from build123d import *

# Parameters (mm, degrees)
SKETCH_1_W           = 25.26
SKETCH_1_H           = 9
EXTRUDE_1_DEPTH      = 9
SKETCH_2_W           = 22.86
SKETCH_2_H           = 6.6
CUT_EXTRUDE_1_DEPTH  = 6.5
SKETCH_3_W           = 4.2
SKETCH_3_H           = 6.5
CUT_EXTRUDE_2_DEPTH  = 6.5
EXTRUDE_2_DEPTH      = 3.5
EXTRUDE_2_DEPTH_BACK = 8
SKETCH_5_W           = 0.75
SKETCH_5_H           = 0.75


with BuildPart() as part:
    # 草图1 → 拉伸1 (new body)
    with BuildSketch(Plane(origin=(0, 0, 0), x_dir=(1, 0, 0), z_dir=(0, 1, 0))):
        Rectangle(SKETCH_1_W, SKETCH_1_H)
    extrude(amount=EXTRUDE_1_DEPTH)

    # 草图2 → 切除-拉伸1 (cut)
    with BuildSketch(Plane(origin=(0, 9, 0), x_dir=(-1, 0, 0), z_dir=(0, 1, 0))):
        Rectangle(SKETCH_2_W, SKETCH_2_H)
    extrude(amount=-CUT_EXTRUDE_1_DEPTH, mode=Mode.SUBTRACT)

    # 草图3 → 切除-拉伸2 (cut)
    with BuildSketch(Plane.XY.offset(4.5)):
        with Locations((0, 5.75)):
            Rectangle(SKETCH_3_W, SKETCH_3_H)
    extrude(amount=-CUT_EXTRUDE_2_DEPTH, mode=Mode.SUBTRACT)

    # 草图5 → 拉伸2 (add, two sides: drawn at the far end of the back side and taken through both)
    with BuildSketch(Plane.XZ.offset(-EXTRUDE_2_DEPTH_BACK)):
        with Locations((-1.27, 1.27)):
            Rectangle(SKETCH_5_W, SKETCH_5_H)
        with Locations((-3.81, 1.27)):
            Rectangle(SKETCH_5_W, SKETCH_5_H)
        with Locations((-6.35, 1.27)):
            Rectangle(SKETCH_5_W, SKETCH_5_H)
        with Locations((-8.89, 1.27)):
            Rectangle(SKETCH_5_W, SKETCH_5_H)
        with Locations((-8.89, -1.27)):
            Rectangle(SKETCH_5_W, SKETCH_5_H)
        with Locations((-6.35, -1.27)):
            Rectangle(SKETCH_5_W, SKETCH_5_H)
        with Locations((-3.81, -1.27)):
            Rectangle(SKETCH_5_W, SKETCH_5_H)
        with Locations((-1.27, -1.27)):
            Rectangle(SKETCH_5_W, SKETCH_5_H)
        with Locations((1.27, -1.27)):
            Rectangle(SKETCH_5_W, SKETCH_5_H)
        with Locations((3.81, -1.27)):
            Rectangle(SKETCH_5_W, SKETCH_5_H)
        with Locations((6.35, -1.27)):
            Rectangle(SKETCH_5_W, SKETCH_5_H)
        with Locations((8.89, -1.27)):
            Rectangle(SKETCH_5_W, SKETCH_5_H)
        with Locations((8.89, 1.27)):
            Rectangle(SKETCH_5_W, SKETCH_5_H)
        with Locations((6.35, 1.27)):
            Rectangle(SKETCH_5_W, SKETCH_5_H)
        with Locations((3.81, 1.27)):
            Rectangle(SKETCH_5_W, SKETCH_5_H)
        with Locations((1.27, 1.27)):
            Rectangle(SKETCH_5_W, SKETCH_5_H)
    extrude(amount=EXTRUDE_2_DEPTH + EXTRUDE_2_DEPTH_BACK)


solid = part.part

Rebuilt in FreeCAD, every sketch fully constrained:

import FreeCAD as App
import Part
import Sketcher
Q = App.Units.Quantity

doc = App.newDocument("Part")
body = doc.addObject("PartDesign::Body", "Body")

sketch1 = body.newObject("Sketcher::SketchObject", "Sketch")
sketch1.AttachmentSupport = (doc.getObject("XZ_Plane"), [""])
sketch1.MapMode = "FlatFace"
sketch1.addGeometry(Part.LineSegment(App.Vector(-12.63, -4.5, 0), App.Vector(-12.63, 4.5, 0)), False)
sketch1.addGeometry(Part.LineSegment(App.Vector(-12.63, 4.5, 0), App.Vector(12.63, 4.5, 0)), False)
sketch1.addGeometry(Part.LineSegment(App.Vector(12.63, 4.5, 0), App.Vector(12.63, -4.5, 0)), False)
sketch1.addGeometry(Part.LineSegment(App.Vector(12.63, -4.5, 0), App.Vector(-12.63, -4.5, 0)), False)
sketch1.addConstraint(Sketcher.Constraint("Coincident", 0, 2, 1, 1))
sketch1.addConstraint(Sketcher.Constraint("Coincident", 1, 2, 2, 1))
sketch1.addConstraint(Sketcher.Constraint("Coincident", 2, 2, 3, 1))
sketch1.addConstraint(Sketcher.Constraint("Coincident", 3, 2, 0, 1))
sketch1.addConstraint(Sketcher.Constraint("Vertical", 0))
sketch1.addConstraint(Sketcher.Constraint("Horizontal", 1))
sketch1.addConstraint(Sketcher.Constraint("Vertical", 2))
sketch1.addConstraint(Sketcher.Constraint("Horizontal", 3))
sketch1.addConstraint(Sketcher.Constraint("Symmetric", 0, 2, 2, 2, -1, 1))
sketch1.addConstraint(Sketcher.Constraint("DistanceY", 0, 1, 0, 2, Q("9 mm")))
sketch1.addConstraint(Sketcher.Constraint("DistanceX", 1, 1, 1, 2, Q("25.26 mm")))
pad1 = body.newObject("PartDesign::Pad", "Pad")
pad1.Profile = sketch1
pad1.Length = 9
pad1.Reversed = True

sketch2 = body.newObject("Sketcher::SketchObject", "Sketch001")
sketch2.AttachmentSupport = (doc.getObject("XZ_Plane"), [""])
sketch2.MapMode = "FlatFace"
sketch2.AttachmentOffset = App.Placement(App.Vector(0, 0, -9), App.Rotation())
sketch2.addGeometry(Part.LineSegment(App.Vector(11.43, 3.3, 0), App.Vector(11.43, -3.3, 0)), False)
sketch2.addGeometry(Part.LineSegment(App.Vector(11.43, -3.3, 0), App.Vector(-11.43, -3.3, 0)), False)
sketch2.addGeometry(Part.LineSegment(App.Vector(-11.43, -3.3, 0), App.Vector(-11.43, 3.3, 0)), False)
sketch2.addGeometry(Part.LineSegment(App.Vector(-11.43, 3.3, 0), App.Vector(11.43, 3.3, 0)), False)
sketch2.addConstraint(Sketcher.Constraint("Coincident", 0, 2, 1, 1))
sketch2.addConstraint(Sketcher.Constraint("Coincident", 1, 2, 2, 1))
sketch2.addConstraint(Sketcher.Constraint("Coincident", 2, 2, 3, 1))
sketch2.addConstraint(Sketcher.Constraint("Coincident", 3, 2, 0, 1))
sketch2.addConstraint(Sketcher.Constraint("Vertical", 0))
sketch2.addConstraint(Sketcher.Constraint("Horizontal", 1))
sketch2.addConstraint(Sketcher.Constraint("Vertical", 2))
sketch2.addConstraint(Sketcher.Constraint("Horizontal", 3))
sketch2.addConstraint(Sketcher.Constraint("Symmetric", 0, 2, 2, 2, -1, 1))
sketch2.addConstraint(Sketcher.Constraint("DistanceY", 0, 2, 0, 1, Q("6.6 mm")))
sketch2.addConstraint(Sketcher.Constraint("DistanceX", 1, 2, 1, 1, Q("22.86 mm")))
pocket1 = body.newObject("PartDesign::Pocket", "Pocket")
pocket1.Profile = sketch2
pocket1.Length = 6.5
pocket1.Reversed = True

sketch3 = body.newObject("Sketcher::SketchObject", "Sketch002")
sketch3.AttachmentSupport = (doc.getObject("XY_Plane"), [""])
sketch3.MapMode = "FlatFace"
sketch3.AttachmentOffset = App.Placement(App.Vector(0, 0, 4.5), App.Rotation())
sketch3.addGeometry(Part.LineSegment(App.Vector(-2.1, 9, 0), App.Vector(-2.1, 2.5, 0)), False)
sketch3.addGeometry(Part.LineSegment(App.Vector(-2.1, 2.5, 0), App.Vector(2.1, 2.5, 0)), False)
sketch3.addGeometry(Part.LineSegment(App.Vector(2.1, 2.5, 0), App.Vector(2.1, 9, 0)), False)
sketch3.addGeometry(Part.LineSegment(App.Vector(2.1, 9, 0), App.Vector(-2.1, 9, 0)), False)
sketch3.addConstraint(Sketcher.Constraint("Coincident", 0, 2, 1, 1))
sketch3.addConstraint(Sketcher.Constraint("Coincident", 1, 2, 2, 1))
sketch3.addConstraint(Sketcher.Constraint("Coincident", 2, 2, 3, 1))
sketch3.addConstraint(Sketcher.Constraint("Coincident", 3, 2, 0, 1))
sketch3.addConstraint(Sketcher.Constraint("Vertical", 0))
sketch3.addConstraint(Sketcher.Constraint("Horizontal", 1))
sketch3.addConstraint(Sketcher.Constraint("Vertical", 2))
sketch3.addConstraint(Sketcher.Constraint("Horizontal", 3))
sketch3.addConstraint(Sketcher.Constraint("DistanceX", 1, 1, 1, 2, Q("4.2 mm")))
sketch3.addConstraint(Sketcher.Constraint("DistanceY", 0, 2, 0, 1, Q("6.5 mm")))
sketch3.addConstraint(Sketcher.Constraint("DistanceY", -1, 1, 2, 2, Q("9 mm")))
sketch3.addConstraint(Sketcher.Constraint("DistanceX", 0, 2, -1, 1, Q("2.1 mm")))
pocket2 = body.newObject("PartDesign::Pocket", "Pocket001")
pocket2.Profile = sketch3
pocket2.Length = 6.5

sketch4 = body.newObject("Sketcher::SketchObject", "Sketch003")
sketch4.AttachmentSupport = (doc.getObject("XZ_Plane"), [""])
sketch4.MapMode = "FlatFace"
sketch4.addGeometry(Part.LineSegment(App.Vector(-1.645, 1.645, 0), App.Vector(-1.645, 0.895, 0)), False)
sketch4.addGeometry(Part.LineSegment(App.Vector(-1.645, 0.895, 0), App.Vector(-0.895, 0.895, 0)), False)
sketch4.addGeometry(Part.LineSegment(App.Vector(-0.895, 0.895, 0), App.Vector(-0.895, 1.645, 0)), False)
sketch4.addGeometry(Part.LineSegment(App.Vector(-0.895, 1.645, 0), App.Vector(-1.645, 1.645, 0)), False)
sketch4.addGeometry(Part.LineSegment(App.Vector(-4.185, 1.645, 0), App.Vector(-4.185, 0.895, 0)), False)
sketch4.addGeometry(Part.LineSegment(App.Vector(-4.185, 0.895, 0), App.Vector(-3.435, 0.895, 0)), False)
sketch4.addGeometry(Part.LineSegment(App.Vector(-3.435, 0.895, 0), App.Vector(-3.435, 1.645, 0)), False)
sketch4.addGeometry(Part.LineSegment(App.Vector(-3.435, 1.645, 0), App.Vector(-4.185, 1.645, 0)), False)
sketch4.addGeometry(Part.LineSegment(App.Vector(-6.725, 1.645, 0), App.Vector(-6.725, 0.895, 0)), False)
sketch4.addGeometry(Part.LineSegment(App.Vector(-6.725, 0.895, 0), App.Vector(-5.975, 0.895, 0)), False)
sketch4.addGeometry(Part.LineSegment(App.Vector(-5.975, 0.895, 0), App.Vector(-5.975, 1.645, 0)), False)
sketch4.addGeometry(Part.LineSegment(App.Vector(-5.975, 1.645, 0), App.Vector(-6.725, 1.645, 0)), False)
sketch4.addGeometry(Part.LineSegment(App.Vector(-9.265, 1.645, 0), App.Vector(-9.265, 0.895, 0)), False)
sketch4.addGeometry(Part.LineSegment(App.Vector(-9.265, 0.895, 0), App.Vector(-8.515, 0.895, 0)), False)
sketch4.addGeometry(Part.LineSegment(App.Vector(-8.515, 0.895, 0), App.Vector(-8.515, 1.645, 0)), False)
sketch4.addGeometry(Part.LineSegment(App.Vector(-8.515, 1.645, 0), App.Vector(-9.265, 1.645, 0)), False)
sketch4.addGeometry(Part.LineSegment(App.Vector(-9.265, -0.895, 0), App.Vector(-9.265, -1.645, 0)), False)
sketch4.addGeometry(Part.LineSegment(App.Vector(-9.265, -1.645, 0), App.Vector(-8.515, -1.645, 0)), False)
sketch4.addGeometry(Part.LineSegment(App.Vector(-8.515, -1.645, 0), App.Vector(-8.515, -0.895, 0)), False)
sketch4.addGeometry(Part.LineSegment(App.Vector(-8.515, -0.895, 0), App.Vector(-9.265, -0.895, 0)), False)
sketch4.addGeometry(Part.LineSegment(App.Vector(-6.725, -0.895, 0), App.Vector(-6.725, -1.645, 0)), False)
sketch4.addGeometry(Part.LineSegment(App.Vector(-6.725, -1.645, 0), App.Vector(-5.975, -1.645, 0)), False)
sketch4.addGeometry(Part.LineSegment(App.Vector(-5.975, -1.645, 0), App.Vector(-5.975, -0.895, 0)), False)
sketch4.addGeometry(Part.LineSegment(App.Vector(-5.975, -0.895, 0), App.Vector(-6.725, -0.895, 0)), False)
sketch4.addGeometry(Part.LineSegment(App.Vector(-4.185, -0.895, 0), App.Vector(-4.185, -1.645, 0)), False)
sketch4.addGeometry(Part.LineSegment(App.Vector(-4.185, -1.645, 0), App.Vector(-3.435, -1.645, 0)), False)
sketch4.addGeometry(Part.LineSegment(App.Vector(-3.435, -1.645, 0), App.Vector(-3.435, -0.895, 0)), False)
sketch4.addGeometry(Part.LineSegment(App.Vector(-3.435, -0.895, 0), App.Vector(-4.185, -0.895, 0)), False)
sketch4.addGeometry(Part.LineSegment(App.Vector(-1.645, -0.895, 0), App.Vector(-1.645, -1.645, 0)), False)
sketch4.addGeometry(Part.LineSegment(App.Vector(-1.645, -1.645, 0), App.Vector(-0.895, -1.645, 0)), False)
sketch4.addGeometry(Part.LineSegment(App.Vector(-0.895, -1.645, 0), App.Vector(-0.895, -0.895, 0)), False)
sketch4.addGeometry(Part.LineSegment(App.Vector(-0.895, -0.895, 0), App.Vector(-1.645, -0.895, 0)), False)
sketch4.addGeometry(Part.LineSegment(App.Vector(0.895, -0.895, 0), App.Vector(0.895, -1.645, 0)), False)
sketch4.addGeometry(Part.LineSegment(App.Vector(0.895, -1.645, 0), App.Vector(1.645, -1.645, 0)), False)
sketch4.addGeometry(Part.LineSegment(App.Vector(1.645, -1.645, 0), App.Vector(1.645, -0.895, 0)), False)
sketch4.addGeometry(Part.LineSegment(App.Vector(1.645, -0.895, 0), App.Vector(0.895, -0.895, 0)), False)
sketch4.addGeometry(Part.LineSegment(App.Vector(3.435, -0.895, 0), App.Vector(3.435, -1.645, 0)), False)
sketch4.addGeometry(Part.LineSegment(App.Vector(3.435, -1.645, 0), App.Vector(4.185, -1.645, 0)), False)
sketch4.addGeometry(Part.LineSegment(App.Vector(4.185, -1.645, 0), App.Vector(4.185, -0.895, 0)), False)
sketch4.addGeometry(Part.LineSegment(App.Vector(4.185, -0.895, 0), App.Vector(3.435, -0.895, 0)), False)
sketch4.addGeometry(Part.LineSegment(App.Vector(5.975, -0.895, 0), App.Vector(5.975, -1.645, 0)), False)
sketch4.addGeometry(Part.LineSegment(App.Vector(5.975, -1.645, 0), App.Vector(6.725, -1.645, 0)), False)
sketch4.addGeometry(Part.LineSegment(App.Vector(6.725, -1.645, 0), App.Vector(6.725, -0.895, 0)), False)
sketch4.addGeometry(Part.LineSegment(App.Vector(6.725, -0.895, 0), App.Vector(5.975, -0.895, 0)), False)
sketch4.addGeometry(Part.LineSegment(App.Vector(8.515, -0.895, 0), App.Vector(8.515, -1.645, 0)), False)
sketch4.addGeometry(Part.LineSegment(App.Vector(8.515, -1.645, 0), App.Vector(9.265, -1.645, 0)), False)
sketch4.addGeometry(Part.LineSegment(App.Vector(9.265, -1.645, 0), App.Vector(9.265, -0.895, 0)), False)
sketch4.addGeometry(Part.LineSegment(App.Vector(9.265, -0.895, 0), App.Vector(8.515, -0.895, 0)), False)
sketch4.addGeometry(Part.LineSegment(App.Vector(8.515, 1.645, 0), App.Vector(8.515, 0.895, 0)), False)
sketch4.addGeometry(Part.LineSegment(App.Vector(8.515, 0.895, 0), App.Vector(9.265, 0.895, 0)), False)
sketch4.addGeometry(Part.LineSegment(App.Vector(9.265, 0.895, 0), App.Vector(9.265, 1.645, 0)), False)
sketch4.addGeometry(Part.LineSegment(App.Vector(9.265, 1.645, 0), App.Vector(8.515, 1.645, 0)), False)
sketch4.addGeometry(Part.LineSegment(App.Vector(5.975, 1.645, 0), App.Vector(5.975, 0.895, 0)), False)
sketch4.addGeometry(Part.LineSegment(App.Vector(5.975, 0.895, 0), App.Vector(6.725, 0.895, 0)), False)
sketch4.addGeometry(Part.LineSegment(App.Vector(6.725, 0.895, 0), App.Vector(6.725, 1.645, 0)), False)
sketch4.addGeometry(Part.LineSegment(App.Vector(6.725, 1.645, 0), App.Vector(5.975, 1.645, 0)), False)
sketch4.addGeometry(Part.LineSegment(App.Vector(3.435, 1.645, 0), App.Vector(3.435, 0.895, 0)), False)
sketch4.addGeometry(Part.LineSegment(App.Vector(3.435, 0.895, 0), App.Vector(4.185, 0.895, 0)), False)
sketch4.addGeometry(Part.LineSegment(App.Vector(4.185, 0.895, 0), App.Vector(4.185, 1.645, 0)), False)
sketch4.addGeometry(Part.LineSegment(App.Vector(4.185, 1.645, 0), App.Vector(3.435, 1.645, 0)), False)
sketch4.addGeometry(Part.LineSegment(App.Vector(0.895, 1.645, 0), App.Vector(0.895, 0.895, 0)), False)
sketch4.addGeometry(Part.LineSegment(App.Vector(0.895, 0.895, 0), App.Vector(1.645, 0.895, 0)), False)
sketch4.addGeometry(Part.LineSegment(App.Vector(1.645, 0.895, 0), App.Vector(1.645, 1.645, 0)), False)
sketch4.addGeometry(Part.LineSegment(App.Vector(1.645, 1.645, 0), App.Vector(0.895, 1.645, 0)), False)
sketch4.addConstraint(Sketcher.Constraint("Coincident", 0, 2, 1, 1))
sketch4.addConstraint(Sketcher.Constraint("Coincident", 1, 2, 2, 1))
sketch4.addConstraint(Sketcher.Constraint("Coincident", 2, 2, 3, 1))
sketch4.addConstraint(Sketcher.Constraint("Coincident", 3, 2, 0, 1))
sketch4.addConstraint(Sketcher.Constraint("Coincident", 4, 2, 5, 1))
sketch4.addConstraint(Sketcher.Constraint("Coincident", 5, 2, 6, 1))
sketch4.addConstraint(Sketcher.Constraint("Coincident", 6, 2, 7, 1))
sketch4.addConstraint(Sketcher.Constraint("Coincident", 7, 2, 4, 1))
sketch4.addConstraint(Sketcher.Constraint("Coincident", 8, 2, 9, 1))
sketch4.addConstraint(Sketcher.Constraint("Coincident", 9, 2, 10, 1))
sketch4.addConstraint(Sketcher.Constraint("Coincident", 10, 2, 11, 1))
sketch4.addConstraint(Sketcher.Constraint("Coincident", 11, 2, 8, 1))
sketch4.addConstraint(Sketcher.Constraint("Coincident", 12, 2, 13, 1))
sketch4.addConstraint(Sketcher.Constraint("Coincident", 13, 2, 14, 1))
sketch4.addConstraint(Sketcher.Constraint("Coincident", 14, 2, 15, 1))
sketch4.addConstraint(Sketcher.Constraint("Coincident", 15, 2, 12, 1))
sketch4.addConstraint(Sketcher.Constraint("Coincident", 16, 2, 17, 1))
sketch4.addConstraint(Sketcher.Constraint("Coincident", 17, 2, 18, 1))
sketch4.addConstraint(Sketcher.Constraint("Coincident", 18, 2, 19, 1))
sketch4.addConstraint(Sketcher.Constraint("Coincident", 19, 2, 16, 1))
sketch4.addConstraint(Sketcher.Constraint("Coincident", 20, 2, 21, 1))
sketch4.addConstraint(Sketcher.Constraint("Coincident", 21, 2, 22, 1))
sketch4.addConstraint(Sketcher.Constraint("Coincident", 22, 2, 23, 1))
sketch4.addConstraint(Sketcher.Constraint("Coincident", 23, 2, 20, 1))
sketch4.addConstraint(Sketcher.Constraint("Coincident", 24, 2, 25, 1))
sketch4.addConstraint(Sketcher.Constraint("Coincident", 25, 2, 26, 1))
sketch4.addConstraint(Sketcher.Constraint("Coincident", 26, 2, 27, 1))
sketch4.addConstraint(Sketcher.Constraint("Coincident", 27, 2, 24, 1))
sketch4.addConstraint(Sketcher.Constraint("Coincident", 28, 2, 29, 1))
sketch4.addConstraint(Sketcher.Constraint("Coincident", 29, 2, 30, 1))
sketch4.addConstraint(Sketcher.Constraint("Coincident", 30, 2, 31, 1))
sketch4.addConstraint(Sketcher.Constraint("Coincident", 31, 2, 28, 1))
sketch4.addConstraint(Sketcher.Constraint("Coincident", 32, 2, 33, 1))
sketch4.addConstraint(Sketcher.Constraint("Coincident", 33, 2, 34, 1))
sketch4.addConstraint(Sketcher.Constraint("Coincident", 34, 2, 35, 1))
sketch4.addConstraint(Sketcher.Constraint("Coincident", 35, 2, 32, 1))
sketch4.addConstraint(Sketcher.Constraint("Coincident", 36, 2, 37, 1))
sketch4.addConstraint(Sketcher.Constraint("Coincident", 37, 2, 38, 1))
sketch4.addConstraint(Sketcher.Constraint("Coincident", 38, 2, 39, 1))
sketch4.addConstraint(Sketcher.Constraint("Coincident", 39, 2, 36, 1))
sketch4.addConstraint(Sketcher.Constraint("Coincident", 40, 2, 41, 1))
sketch4.addConstraint(Sketcher.Constraint("Coincident", 41, 2, 42, 1))
sketch4.addConstraint(Sketcher.Constraint("Coincident", 42, 2, 43, 1))
sketch4.addConstraint(Sketcher.Constraint("Coincident", 43, 2, 40, 1))
sketch4.addConstraint(Sketcher.Constraint("Coincident", 44, 2, 45, 1))
sketch4.addConstraint(Sketcher.Constraint("Coincident", 45, 2, 46, 1))
sketch4.addConstraint(Sketcher.Constraint("Coincident", 46, 2, 47, 1))
sketch4.addConstraint(Sketcher.Constraint("Coincident", 47, 2, 44, 1))
sketch4.addConstraint(Sketcher.Constraint("Coincident", 48, 2, 49, 1))
sketch4.addConstraint(Sketcher.Constraint("Coincident", 49, 2, 50, 1))
sketch4.addConstraint(Sketcher.Constraint("Coincident", 50, 2, 51, 1))
sketch4.addConstraint(Sketcher.Constraint("Coincident", 51, 2, 48, 1))
sketch4.addConstraint(Sketcher.Constraint("Coincident", 52, 2, 53, 1))
sketch4.addConstraint(Sketcher.Constraint("Coincident", 53, 2, 54, 1))
sketch4.addConstraint(Sketcher.Constraint("Coincident", 54, 2, 55, 1))
sketch4.addConstraint(Sketcher.Constraint("Coincident", 55, 2, 52, 1))
sketch4.addConstraint(Sketcher.Constraint("Coincident", 56, 2, 57, 1))
sketch4.addConstraint(Sketcher.Constraint("Coincident", 57, 2, 58, 1))
sketch4.addConstraint(Sketcher.Constraint("Coincident", 58, 2, 59, 1))
sketch4.addConstraint(Sketcher.Constraint("Coincident", 59, 2, 56, 1))
sketch4.addConstraint(Sketcher.Constraint("Coincident", 60, 2, 61, 1))
sketch4.addConstraint(Sketcher.Constraint("Coincident", 61, 2, 62, 1))
sketch4.addConstraint(Sketcher.Constraint("Coincident", 62, 2, 63, 1))
sketch4.addConstraint(Sketcher.Constraint("Coincident", 63, 2, 60, 1))
sketch4.addConstraint(Sketcher.Constraint("Vertical", 0))
sketch4.addConstraint(Sketcher.Constraint("Horizontal", 1))
sketch4.addConstraint(Sketcher.Constraint("Vertical", 2))
sketch4.addConstraint(Sketcher.Constraint("Horizontal", 3))
sketch4.addConstraint(Sketcher.Constraint("Vertical", 4))
sketch4.addConstraint(Sketcher.Constraint("Horizontal", 5))
sketch4.addConstraint(Sketcher.Constraint("Vertical", 6))
sketch4.addConstraint(Sketcher.Constraint("Horizontal", 7))
sketch4.addConstraint(Sketcher.Constraint("Vertical", 8))
sketch4.addConstraint(Sketcher.Constraint("Horizontal", 9))
sketch4.addConstraint(Sketcher.Constraint("Vertical", 10))
sketch4.addConstraint(Sketcher.Constraint("Horizontal", 11))
sketch4.addConstraint(Sketcher.Constraint("Vertical", 12))
sketch4.addConstraint(Sketcher.Constraint("Horizontal", 13))
sketch4.addConstraint(Sketcher.Constraint("Vertical", 14))
sketch4.addConstraint(Sketcher.Constraint("Horizontal", 15))
sketch4.addConstraint(Sketcher.Constraint("Vertical", 16))
sketch4.addConstraint(Sketcher.Constraint("Horizontal", 17))
sketch4.addConstraint(Sketcher.Constraint("Vertical", 18))
sketch4.addConstraint(Sketcher.Constraint("Horizontal", 19))
sketch4.addConstraint(Sketcher.Constraint("Vertical", 20))
sketch4.addConstraint(Sketcher.Constraint("Horizontal", 21))
sketch4.addConstraint(Sketcher.Constraint("Vertical", 22))
sketch4.addConstraint(Sketcher.Constraint("Horizontal", 23))
sketch4.addConstraint(Sketcher.Constraint("Vertical", 24))
sketch4.addConstraint(Sketcher.Constraint("Horizontal", 25))
sketch4.addConstraint(Sketcher.Constraint("Vertical", 26))
sketch4.addConstraint(Sketcher.Constraint("Horizontal", 27))
sketch4.addConstraint(Sketcher.Constraint("Vertical", 28))
sketch4.addConstraint(Sketcher.Constraint("Horizontal", 29))
sketch4.addConstraint(Sketcher.Constraint("Vertical", 30))
sketch4.addConstraint(Sketcher.Constraint("Horizontal", 31))
sketch4.addConstraint(Sketcher.Constraint("Vertical", 32))
sketch4.addConstraint(Sketcher.Constraint("Horizontal", 33))
sketch4.addConstraint(Sketcher.Constraint("Vertical", 34))
sketch4.addConstraint(Sketcher.Constraint("Horizontal", 35))
sketch4.addConstraint(Sketcher.Constraint("Vertical", 36))
sketch4.addConstraint(Sketcher.Constraint("Horizontal", 37))
sketch4.addConstraint(Sketcher.Constraint("Vertical", 38))
sketch4.addConstraint(Sketcher.Constraint("Horizontal", 39))
sketch4.addConstraint(Sketcher.Constraint("Vertical", 40))
sketch4.addConstraint(Sketcher.Constraint("Horizontal", 41))
sketch4.addConstraint(Sketcher.Constraint("Vertical", 42))
sketch4.addConstraint(Sketcher.Constraint("Horizontal", 43))
sketch4.addConstraint(Sketcher.Constraint("Vertical", 44))
sketch4.addConstraint(Sketcher.Constraint("Horizontal", 45))
sketch4.addConstraint(Sketcher.Constraint("Vertical", 46))
sketch4.addConstraint(Sketcher.Constraint("Horizontal", 47))
sketch4.addConstraint(Sketcher.Constraint("Vertical", 48))
sketch4.addConstraint(Sketcher.Constraint("Horizontal", 49))
sketch4.addConstraint(Sketcher.Constraint("Vertical", 50))
sketch4.addConstraint(Sketcher.Constraint("Horizontal", 51))
sketch4.addConstraint(Sketcher.Constraint("Vertical", 52))
sketch4.addConstraint(Sketcher.Constraint("Horizontal", 53))
sketch4.addConstraint(Sketcher.Constraint("Vertical", 54))
sketch4.addConstraint(Sketcher.Constraint("Horizontal", 55))
sketch4.addConstraint(Sketcher.Constraint("Vertical", 56))
sketch4.addConstraint(Sketcher.Constraint("Horizontal", 57))
sketch4.addConstraint(Sketcher.Constraint("Vertical", 58))
sketch4.addConstraint(Sketcher.Constraint("Horizontal", 59))
sketch4.addConstraint(Sketcher.Constraint("Vertical", 60))
sketch4.addConstraint(Sketcher.Constraint("Horizontal", 61))
sketch4.addConstraint(Sketcher.Constraint("Vertical", 62))
sketch4.addConstraint(Sketcher.Constraint("Horizontal", 63))
sketch4.addConstraint(Sketcher.Constraint("Symmetric", 2, 2, 32, 2, -1, 1))
sketch4.addConstraint(Sketcher.Constraint("Symmetric", 0, 2, 34, 2, -1, 1))
sketch4.addConstraint(Sketcher.Constraint("Symmetric", 6, 2, 36, 2, -1, 1))
sketch4.addConstraint(Sketcher.Constraint("Symmetric", 4, 2, 38, 2, -1, 1))
sketch4.addConstraint(Sketcher.Constraint("Symmetric", 10, 2, 40, 2, -1, 1))
sketch4.addConstraint(Sketcher.Constraint("Symmetric", 8, 2, 42, 2, -1, 1))
sketch4.addConstraint(Sketcher.Constraint("Symmetric", 14, 2, 44, 2, -1, 1))
sketch4.addConstraint(Sketcher.Constraint("Symmetric", 12, 2, 46, 2, -1, 1))
sketch4.addConstraint(Sketcher.Constraint("Symmetric", 18, 2, 48, 2, -1, 1))
sketch4.addConstraint(Sketcher.Constraint("Symmetric", 16, 2, 50, 2, -1, 1))
sketch4.addConstraint(Sketcher.Constraint("Symmetric", 22, 2, 52, 2, -1, 1))
sketch4.addConstraint(Sketcher.Constraint("Symmetric", 20, 2, 54, 2, -1, 1))
sketch4.addConstraint(Sketcher.Constraint("Symmetric", 26, 2, 56, 2, -1, 1))
sketch4.addConstraint(Sketcher.Constraint("Symmetric", 24, 2, 58, 2, -1, 1))
sketch4.addConstraint(Sketcher.Constraint("Symmetric", 30, 2, 60, 2, -1, 1))
sketch4.addConstraint(Sketcher.Constraint("Symmetric", 28, 2, 62, 2, -1, 1))
sketch4.addConstraint(Sketcher.Constraint("Symmetric", 29, 2, 32, 2, -2))
sketch4.addConstraint(Sketcher.Constraint("Symmetric", 31, 2, 34, 2, -2))
sketch4.addConstraint(Sketcher.Constraint("Symmetric", 25, 2, 36, 2, -2))
sketch4.addConstraint(Sketcher.Constraint("Symmetric", 27, 2, 38, 2, -2))
sketch4.addConstraint(Sketcher.Constraint("Symmetric", 21, 2, 40, 2, -2))
sketch4.addConstraint(Sketcher.Constraint("Symmetric", 23, 2, 42, 2, -2))
sketch4.addConstraint(Sketcher.Constraint("Symmetric", 17, 2, 44, 2, -2))
sketch4.addConstraint(Sketcher.Constraint("Symmetric", 19, 2, 46, 2, -2))
sketch4.addConstraint(Sketcher.Constraint("Horizontal", 1, 2, 4, 2))
sketch4.addConstraint(Sketcher.Constraint("Horizontal", 3, 2, 6, 2))
sketch4.addConstraint(Sketcher.Constraint("Horizontal", 5, 2, 8, 2))
sketch4.addConstraint(Sketcher.Constraint("Horizontal", 7, 2, 10, 2))
sketch4.addConstraint(Sketcher.Constraint("Horizontal", 9, 2, 12, 2))
sketch4.addConstraint(Sketcher.Constraint("Horizontal", 11, 2, 14, 2))
sketch4.addConstraint(Sketcher.Constraint("Equal", 3, 5))
sketch4.addConstraint(Sketcher.Constraint("Equal", 7, 9))
sketch4.addConstraint(Sketcher.Constraint("Equal", 11, 13))
sketch4.addConstraint(Sketcher.Constraint("Equal", 63, 0))
sketch4.addConstraint(Sketcher.Constraint("DistanceX", 1, 1, 1, 2, Q("0.75 mm")))
sketch4.addConstraint(Sketcher.Constraint("DistanceX", 0, 2, -1, 1, Q("1.645 mm")))
sketch4.addConstraint(Sketcher.Constraint("DistanceY", -1, 1, 0, 2, Q("0.895 mm")))
sketch4.addConstraint(Sketcher.Constraint("DistanceX", 4, 2, -1, 1, Q("4.185 mm")))
sketch4.addConstraint(Sketcher.Constraint("DistanceX", 8, 2, -1, 1, Q("6.725 mm")))
sketch4.addConstraint(Sketcher.Constraint("DistanceX", 12, 2, -1, 1, Q("9.265 mm")))
pad2 = body.newObject("PartDesign::Pad", "Pad001")
pad2.Profile = sketch4
pad2.Type = "TwoLengths"
pad2.Length = 3.5
pad2.Length2 = 8

doc.recompute()
